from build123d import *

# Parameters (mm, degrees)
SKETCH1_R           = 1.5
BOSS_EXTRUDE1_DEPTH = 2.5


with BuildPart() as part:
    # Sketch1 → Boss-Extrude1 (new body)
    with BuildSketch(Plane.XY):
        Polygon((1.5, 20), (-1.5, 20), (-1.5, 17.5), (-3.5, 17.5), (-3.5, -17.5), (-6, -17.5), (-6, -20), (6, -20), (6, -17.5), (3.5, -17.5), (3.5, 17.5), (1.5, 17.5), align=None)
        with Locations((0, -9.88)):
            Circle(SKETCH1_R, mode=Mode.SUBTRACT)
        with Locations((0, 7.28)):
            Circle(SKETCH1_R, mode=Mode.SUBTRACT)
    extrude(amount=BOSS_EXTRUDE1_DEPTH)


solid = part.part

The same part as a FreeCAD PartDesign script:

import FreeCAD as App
import Part
import Sketcher

V = App.Vector

doc = App.newDocument("Part")
params = doc.addObject("Spreadsheet::Sheet", "Params")
for row, (alias, value) in enumerate([
    ("sketch1_diameter", "3 mm"),
    ("sketch1_width", "3 mm"),
    ("sketch1_width2", "2 mm"),
    ("sketch1_width3", "12 mm"),
    ("sketch1_height", "35 mm"),
    ("pad1_length", "2.5 mm"),
], start=1):
    params.set(f"A{row}", alias)
    params.set(f"B{row}", "=" + value)
    params.setAlias(f"B{row}", alias)

body = doc.addObject("PartDesign::Body", "Body")

# Sketch on XY plane
sketch1 = body.newObject("Sketcher::SketchObject", "Sketch")
sketch1.AttachmentSupport = (doc.getObject("XY_Plane"), [""])
sketch1.MapMode = "FlatFace"
sketch1.addGeometry(Part.LineSegment(V(1.5, 20, 0), V(-1.5, 20, 0)), False)
sketch1.addGeometry(Part.LineSegment(V(-1.5, 20, 0), V(-1.5, 17.5, 0)), False)
sketch1.addGeometry(Part.LineSegment(V(-1.5, 17.5, 0), V(-3.5, 17.5, 0)), False)
sketch1.addGeometry(Part.LineSegment(V(-3.5, 17.5, 0), V(-3.5, -17.5, 0)), False)
sketch1.addGeometry(Part.LineSegment(V(-3.5, -17.5, 0), V(-6, -17.5, 0)), False)
sketch1.addGeometry(Part.LineSegment(V(-6, -17.5, 0), V(-6, -20, 0)), False)
sketch1.addGeometry(Part.LineSegment(V(-6, -20, 0), V(6, -20, 0)), False)
sketch1.addGeometry(Part.LineSegment(V(6, -20, 0), V(6, -17.5, 0)), False)
sketch1.addGeometry(Part.LineSegment(V(6, -17.5, 0), V(3.5, -17.5, 0)), False)
sketch1.addGeometry(Part.LineSegment(V(3.5, -17.5, 0), V(3.5, 17.5, 0)), False)
sketch1.addGeometry(Part.LineSegment(V(3.5, 17.5, 0), V(1.5, 17.5, 0)), False)
sketch1.addGeometry(Part.LineSegment(V(1.5, 17.5, 0), V(1.5, 20, 0)), False)
sketch1.addGeometry(Part.Circle(V(0, -9.88, 0), V(0, 0, 1), 1.5), False)
sketch1.addGeometry(Part.Circle(V(0, 7.28, 0), V(0, 0, 1), 1.5), False)
sketch1.addConstraint(Sketcher.Constraint("Coincident", 0, 2, 1, 1))
sketch1.addConstraint(Sketcher.Constraint("Coincident", 1, 2, 2, 1))
sketch1.addConstraint(Sketcher.Constraint("Coincident", 2, 2, 3, 1))
sketch1.addConstraint(Sketcher.Constraint("Coincident", 3, 2, 4, 1))
sketch1.addConstraint(Sketcher.Constraint("Coincident", 4, 2, 5, 1))
sketch1.addConstraint(Sketcher.Constraint("Coincident", 5, 2, 6, 1))
sketch1.addConstraint(Sketcher.Constraint("Coincident", 6, 2, 7, 1))
sketch1.addConstraint(Sketcher.Constraint("Coincident", 7, 2, 8, 1))
sketch1.addConstraint(Sketcher.Constraint("Coincident", 8, 2, 9, 1))
sketch1.addConstraint(Sketcher.Constraint("Coincident", 9, 2, 10, 1))
sketch1.addConstraint(Sketcher.Constraint("Coincident", 10, 2, 11, 1))
sketch1.addConstraint(Sketcher.Constraint("Coincident", 11, 2, 0, 1))
sketch1.addConstraint(Sketcher.Constraint("Horizontal", 0))
sketch1.addConstraint(Sketcher.Constraint("Vertical", 1))
sketch1.addConstraint(Sketcher.Constraint("Horizontal", 2))
sketch1.addConstraint(Sketcher.Constraint("Vertical", 3))
sketch1.addConstraint(Sketcher.Constraint("Horizontal", 4))
sketch1.addConstraint(Sketcher.Constraint("Vertical", 5))
sketch1.addConstraint(Sketcher.Constraint("Horizontal", 6))
sketch1.addConstraint(Sketcher.Constraint("Vertical", 7))
sketch1.addConstraint(Sketcher.Constraint("Horizontal", 8))
sketch1.addConstraint(Sketcher.Constraint("Vertical", 9))
sketch1.addConstraint(Sketcher.Constraint("Horizontal", 10))
sketch1.addConstraint(Sketcher.Constraint("Vertical", 11))
sketch1.addConstraint(Sketcher.Constraint("Equal", 12, 13))
sketch1.addConstraint(Sketcher.Constraint("Symmetric", 2, 2, 8, 2, -1, 1))
sketch1.addConstraint(Sketcher.Constraint("Symmetric", 4, 2, 7, 2, -2))
sketch1.addConstraint(Sketcher.Constraint("Symmetric", 1, 2, 10, 2, -2))
sketch1.addConstraint(Sketcher.Constraint("PointOnObject", 12, 3, -2))
sketch1.addConstraint(Sketcher.Constraint("PointOnObject", 13, 3, -2))
sketch1.addConstraint(Sketcher.Constraint("Equal", 8, 1))
sketch1.addConstraint(Sketcher.Constraint("Equal", 1, 5))
sketch1.addConstraint(Sketcher.Constraint("Diameter", 12, 3.0))
sketch1.addConstraint(Sketcher.Constraint("DistanceX", 0, 2, 0, 1, 3.0))
sketch1.addConstraint(Sketcher.Constraint("DistanceX", 2, 2, 2, 1, 2.0))
sketch1.addConstraint(Sketcher.Constraint("DistanceX", 6, 1, 6, 2, 12.0))
sketch1.addConstraint(Sketcher.Constraint("DistanceY", 3, 2, 3, 1, 35.0))
sketch1.addConstraint(Sketcher.Constraint("DistanceY", 12, 3, -1, 1, 9.88))
sketch1.addConstraint(Sketcher.Constraint("DistanceY", -1, 1, 13, 3, 7.28))
sketch1.setExpression("Constraints[32]", "Params.sketch1_diameter")
sketch1.setExpression("Constraints[33]", "Params.sketch1_width")
sketch1.setExpression("Constraints[34]", "Params.sketch1_width2")
sketch1.setExpression("Constraints[35]", "Params.sketch1_width3")
sketch1.setExpression("Constraints[36]", "Params.sketch1_height")
pad1 = body.newObject("PartDesign::Pad", "Pad")
pad1.Profile = sketch1
pad1.setExpression("Length", "Params.pad1_length")

doc.recompute()
